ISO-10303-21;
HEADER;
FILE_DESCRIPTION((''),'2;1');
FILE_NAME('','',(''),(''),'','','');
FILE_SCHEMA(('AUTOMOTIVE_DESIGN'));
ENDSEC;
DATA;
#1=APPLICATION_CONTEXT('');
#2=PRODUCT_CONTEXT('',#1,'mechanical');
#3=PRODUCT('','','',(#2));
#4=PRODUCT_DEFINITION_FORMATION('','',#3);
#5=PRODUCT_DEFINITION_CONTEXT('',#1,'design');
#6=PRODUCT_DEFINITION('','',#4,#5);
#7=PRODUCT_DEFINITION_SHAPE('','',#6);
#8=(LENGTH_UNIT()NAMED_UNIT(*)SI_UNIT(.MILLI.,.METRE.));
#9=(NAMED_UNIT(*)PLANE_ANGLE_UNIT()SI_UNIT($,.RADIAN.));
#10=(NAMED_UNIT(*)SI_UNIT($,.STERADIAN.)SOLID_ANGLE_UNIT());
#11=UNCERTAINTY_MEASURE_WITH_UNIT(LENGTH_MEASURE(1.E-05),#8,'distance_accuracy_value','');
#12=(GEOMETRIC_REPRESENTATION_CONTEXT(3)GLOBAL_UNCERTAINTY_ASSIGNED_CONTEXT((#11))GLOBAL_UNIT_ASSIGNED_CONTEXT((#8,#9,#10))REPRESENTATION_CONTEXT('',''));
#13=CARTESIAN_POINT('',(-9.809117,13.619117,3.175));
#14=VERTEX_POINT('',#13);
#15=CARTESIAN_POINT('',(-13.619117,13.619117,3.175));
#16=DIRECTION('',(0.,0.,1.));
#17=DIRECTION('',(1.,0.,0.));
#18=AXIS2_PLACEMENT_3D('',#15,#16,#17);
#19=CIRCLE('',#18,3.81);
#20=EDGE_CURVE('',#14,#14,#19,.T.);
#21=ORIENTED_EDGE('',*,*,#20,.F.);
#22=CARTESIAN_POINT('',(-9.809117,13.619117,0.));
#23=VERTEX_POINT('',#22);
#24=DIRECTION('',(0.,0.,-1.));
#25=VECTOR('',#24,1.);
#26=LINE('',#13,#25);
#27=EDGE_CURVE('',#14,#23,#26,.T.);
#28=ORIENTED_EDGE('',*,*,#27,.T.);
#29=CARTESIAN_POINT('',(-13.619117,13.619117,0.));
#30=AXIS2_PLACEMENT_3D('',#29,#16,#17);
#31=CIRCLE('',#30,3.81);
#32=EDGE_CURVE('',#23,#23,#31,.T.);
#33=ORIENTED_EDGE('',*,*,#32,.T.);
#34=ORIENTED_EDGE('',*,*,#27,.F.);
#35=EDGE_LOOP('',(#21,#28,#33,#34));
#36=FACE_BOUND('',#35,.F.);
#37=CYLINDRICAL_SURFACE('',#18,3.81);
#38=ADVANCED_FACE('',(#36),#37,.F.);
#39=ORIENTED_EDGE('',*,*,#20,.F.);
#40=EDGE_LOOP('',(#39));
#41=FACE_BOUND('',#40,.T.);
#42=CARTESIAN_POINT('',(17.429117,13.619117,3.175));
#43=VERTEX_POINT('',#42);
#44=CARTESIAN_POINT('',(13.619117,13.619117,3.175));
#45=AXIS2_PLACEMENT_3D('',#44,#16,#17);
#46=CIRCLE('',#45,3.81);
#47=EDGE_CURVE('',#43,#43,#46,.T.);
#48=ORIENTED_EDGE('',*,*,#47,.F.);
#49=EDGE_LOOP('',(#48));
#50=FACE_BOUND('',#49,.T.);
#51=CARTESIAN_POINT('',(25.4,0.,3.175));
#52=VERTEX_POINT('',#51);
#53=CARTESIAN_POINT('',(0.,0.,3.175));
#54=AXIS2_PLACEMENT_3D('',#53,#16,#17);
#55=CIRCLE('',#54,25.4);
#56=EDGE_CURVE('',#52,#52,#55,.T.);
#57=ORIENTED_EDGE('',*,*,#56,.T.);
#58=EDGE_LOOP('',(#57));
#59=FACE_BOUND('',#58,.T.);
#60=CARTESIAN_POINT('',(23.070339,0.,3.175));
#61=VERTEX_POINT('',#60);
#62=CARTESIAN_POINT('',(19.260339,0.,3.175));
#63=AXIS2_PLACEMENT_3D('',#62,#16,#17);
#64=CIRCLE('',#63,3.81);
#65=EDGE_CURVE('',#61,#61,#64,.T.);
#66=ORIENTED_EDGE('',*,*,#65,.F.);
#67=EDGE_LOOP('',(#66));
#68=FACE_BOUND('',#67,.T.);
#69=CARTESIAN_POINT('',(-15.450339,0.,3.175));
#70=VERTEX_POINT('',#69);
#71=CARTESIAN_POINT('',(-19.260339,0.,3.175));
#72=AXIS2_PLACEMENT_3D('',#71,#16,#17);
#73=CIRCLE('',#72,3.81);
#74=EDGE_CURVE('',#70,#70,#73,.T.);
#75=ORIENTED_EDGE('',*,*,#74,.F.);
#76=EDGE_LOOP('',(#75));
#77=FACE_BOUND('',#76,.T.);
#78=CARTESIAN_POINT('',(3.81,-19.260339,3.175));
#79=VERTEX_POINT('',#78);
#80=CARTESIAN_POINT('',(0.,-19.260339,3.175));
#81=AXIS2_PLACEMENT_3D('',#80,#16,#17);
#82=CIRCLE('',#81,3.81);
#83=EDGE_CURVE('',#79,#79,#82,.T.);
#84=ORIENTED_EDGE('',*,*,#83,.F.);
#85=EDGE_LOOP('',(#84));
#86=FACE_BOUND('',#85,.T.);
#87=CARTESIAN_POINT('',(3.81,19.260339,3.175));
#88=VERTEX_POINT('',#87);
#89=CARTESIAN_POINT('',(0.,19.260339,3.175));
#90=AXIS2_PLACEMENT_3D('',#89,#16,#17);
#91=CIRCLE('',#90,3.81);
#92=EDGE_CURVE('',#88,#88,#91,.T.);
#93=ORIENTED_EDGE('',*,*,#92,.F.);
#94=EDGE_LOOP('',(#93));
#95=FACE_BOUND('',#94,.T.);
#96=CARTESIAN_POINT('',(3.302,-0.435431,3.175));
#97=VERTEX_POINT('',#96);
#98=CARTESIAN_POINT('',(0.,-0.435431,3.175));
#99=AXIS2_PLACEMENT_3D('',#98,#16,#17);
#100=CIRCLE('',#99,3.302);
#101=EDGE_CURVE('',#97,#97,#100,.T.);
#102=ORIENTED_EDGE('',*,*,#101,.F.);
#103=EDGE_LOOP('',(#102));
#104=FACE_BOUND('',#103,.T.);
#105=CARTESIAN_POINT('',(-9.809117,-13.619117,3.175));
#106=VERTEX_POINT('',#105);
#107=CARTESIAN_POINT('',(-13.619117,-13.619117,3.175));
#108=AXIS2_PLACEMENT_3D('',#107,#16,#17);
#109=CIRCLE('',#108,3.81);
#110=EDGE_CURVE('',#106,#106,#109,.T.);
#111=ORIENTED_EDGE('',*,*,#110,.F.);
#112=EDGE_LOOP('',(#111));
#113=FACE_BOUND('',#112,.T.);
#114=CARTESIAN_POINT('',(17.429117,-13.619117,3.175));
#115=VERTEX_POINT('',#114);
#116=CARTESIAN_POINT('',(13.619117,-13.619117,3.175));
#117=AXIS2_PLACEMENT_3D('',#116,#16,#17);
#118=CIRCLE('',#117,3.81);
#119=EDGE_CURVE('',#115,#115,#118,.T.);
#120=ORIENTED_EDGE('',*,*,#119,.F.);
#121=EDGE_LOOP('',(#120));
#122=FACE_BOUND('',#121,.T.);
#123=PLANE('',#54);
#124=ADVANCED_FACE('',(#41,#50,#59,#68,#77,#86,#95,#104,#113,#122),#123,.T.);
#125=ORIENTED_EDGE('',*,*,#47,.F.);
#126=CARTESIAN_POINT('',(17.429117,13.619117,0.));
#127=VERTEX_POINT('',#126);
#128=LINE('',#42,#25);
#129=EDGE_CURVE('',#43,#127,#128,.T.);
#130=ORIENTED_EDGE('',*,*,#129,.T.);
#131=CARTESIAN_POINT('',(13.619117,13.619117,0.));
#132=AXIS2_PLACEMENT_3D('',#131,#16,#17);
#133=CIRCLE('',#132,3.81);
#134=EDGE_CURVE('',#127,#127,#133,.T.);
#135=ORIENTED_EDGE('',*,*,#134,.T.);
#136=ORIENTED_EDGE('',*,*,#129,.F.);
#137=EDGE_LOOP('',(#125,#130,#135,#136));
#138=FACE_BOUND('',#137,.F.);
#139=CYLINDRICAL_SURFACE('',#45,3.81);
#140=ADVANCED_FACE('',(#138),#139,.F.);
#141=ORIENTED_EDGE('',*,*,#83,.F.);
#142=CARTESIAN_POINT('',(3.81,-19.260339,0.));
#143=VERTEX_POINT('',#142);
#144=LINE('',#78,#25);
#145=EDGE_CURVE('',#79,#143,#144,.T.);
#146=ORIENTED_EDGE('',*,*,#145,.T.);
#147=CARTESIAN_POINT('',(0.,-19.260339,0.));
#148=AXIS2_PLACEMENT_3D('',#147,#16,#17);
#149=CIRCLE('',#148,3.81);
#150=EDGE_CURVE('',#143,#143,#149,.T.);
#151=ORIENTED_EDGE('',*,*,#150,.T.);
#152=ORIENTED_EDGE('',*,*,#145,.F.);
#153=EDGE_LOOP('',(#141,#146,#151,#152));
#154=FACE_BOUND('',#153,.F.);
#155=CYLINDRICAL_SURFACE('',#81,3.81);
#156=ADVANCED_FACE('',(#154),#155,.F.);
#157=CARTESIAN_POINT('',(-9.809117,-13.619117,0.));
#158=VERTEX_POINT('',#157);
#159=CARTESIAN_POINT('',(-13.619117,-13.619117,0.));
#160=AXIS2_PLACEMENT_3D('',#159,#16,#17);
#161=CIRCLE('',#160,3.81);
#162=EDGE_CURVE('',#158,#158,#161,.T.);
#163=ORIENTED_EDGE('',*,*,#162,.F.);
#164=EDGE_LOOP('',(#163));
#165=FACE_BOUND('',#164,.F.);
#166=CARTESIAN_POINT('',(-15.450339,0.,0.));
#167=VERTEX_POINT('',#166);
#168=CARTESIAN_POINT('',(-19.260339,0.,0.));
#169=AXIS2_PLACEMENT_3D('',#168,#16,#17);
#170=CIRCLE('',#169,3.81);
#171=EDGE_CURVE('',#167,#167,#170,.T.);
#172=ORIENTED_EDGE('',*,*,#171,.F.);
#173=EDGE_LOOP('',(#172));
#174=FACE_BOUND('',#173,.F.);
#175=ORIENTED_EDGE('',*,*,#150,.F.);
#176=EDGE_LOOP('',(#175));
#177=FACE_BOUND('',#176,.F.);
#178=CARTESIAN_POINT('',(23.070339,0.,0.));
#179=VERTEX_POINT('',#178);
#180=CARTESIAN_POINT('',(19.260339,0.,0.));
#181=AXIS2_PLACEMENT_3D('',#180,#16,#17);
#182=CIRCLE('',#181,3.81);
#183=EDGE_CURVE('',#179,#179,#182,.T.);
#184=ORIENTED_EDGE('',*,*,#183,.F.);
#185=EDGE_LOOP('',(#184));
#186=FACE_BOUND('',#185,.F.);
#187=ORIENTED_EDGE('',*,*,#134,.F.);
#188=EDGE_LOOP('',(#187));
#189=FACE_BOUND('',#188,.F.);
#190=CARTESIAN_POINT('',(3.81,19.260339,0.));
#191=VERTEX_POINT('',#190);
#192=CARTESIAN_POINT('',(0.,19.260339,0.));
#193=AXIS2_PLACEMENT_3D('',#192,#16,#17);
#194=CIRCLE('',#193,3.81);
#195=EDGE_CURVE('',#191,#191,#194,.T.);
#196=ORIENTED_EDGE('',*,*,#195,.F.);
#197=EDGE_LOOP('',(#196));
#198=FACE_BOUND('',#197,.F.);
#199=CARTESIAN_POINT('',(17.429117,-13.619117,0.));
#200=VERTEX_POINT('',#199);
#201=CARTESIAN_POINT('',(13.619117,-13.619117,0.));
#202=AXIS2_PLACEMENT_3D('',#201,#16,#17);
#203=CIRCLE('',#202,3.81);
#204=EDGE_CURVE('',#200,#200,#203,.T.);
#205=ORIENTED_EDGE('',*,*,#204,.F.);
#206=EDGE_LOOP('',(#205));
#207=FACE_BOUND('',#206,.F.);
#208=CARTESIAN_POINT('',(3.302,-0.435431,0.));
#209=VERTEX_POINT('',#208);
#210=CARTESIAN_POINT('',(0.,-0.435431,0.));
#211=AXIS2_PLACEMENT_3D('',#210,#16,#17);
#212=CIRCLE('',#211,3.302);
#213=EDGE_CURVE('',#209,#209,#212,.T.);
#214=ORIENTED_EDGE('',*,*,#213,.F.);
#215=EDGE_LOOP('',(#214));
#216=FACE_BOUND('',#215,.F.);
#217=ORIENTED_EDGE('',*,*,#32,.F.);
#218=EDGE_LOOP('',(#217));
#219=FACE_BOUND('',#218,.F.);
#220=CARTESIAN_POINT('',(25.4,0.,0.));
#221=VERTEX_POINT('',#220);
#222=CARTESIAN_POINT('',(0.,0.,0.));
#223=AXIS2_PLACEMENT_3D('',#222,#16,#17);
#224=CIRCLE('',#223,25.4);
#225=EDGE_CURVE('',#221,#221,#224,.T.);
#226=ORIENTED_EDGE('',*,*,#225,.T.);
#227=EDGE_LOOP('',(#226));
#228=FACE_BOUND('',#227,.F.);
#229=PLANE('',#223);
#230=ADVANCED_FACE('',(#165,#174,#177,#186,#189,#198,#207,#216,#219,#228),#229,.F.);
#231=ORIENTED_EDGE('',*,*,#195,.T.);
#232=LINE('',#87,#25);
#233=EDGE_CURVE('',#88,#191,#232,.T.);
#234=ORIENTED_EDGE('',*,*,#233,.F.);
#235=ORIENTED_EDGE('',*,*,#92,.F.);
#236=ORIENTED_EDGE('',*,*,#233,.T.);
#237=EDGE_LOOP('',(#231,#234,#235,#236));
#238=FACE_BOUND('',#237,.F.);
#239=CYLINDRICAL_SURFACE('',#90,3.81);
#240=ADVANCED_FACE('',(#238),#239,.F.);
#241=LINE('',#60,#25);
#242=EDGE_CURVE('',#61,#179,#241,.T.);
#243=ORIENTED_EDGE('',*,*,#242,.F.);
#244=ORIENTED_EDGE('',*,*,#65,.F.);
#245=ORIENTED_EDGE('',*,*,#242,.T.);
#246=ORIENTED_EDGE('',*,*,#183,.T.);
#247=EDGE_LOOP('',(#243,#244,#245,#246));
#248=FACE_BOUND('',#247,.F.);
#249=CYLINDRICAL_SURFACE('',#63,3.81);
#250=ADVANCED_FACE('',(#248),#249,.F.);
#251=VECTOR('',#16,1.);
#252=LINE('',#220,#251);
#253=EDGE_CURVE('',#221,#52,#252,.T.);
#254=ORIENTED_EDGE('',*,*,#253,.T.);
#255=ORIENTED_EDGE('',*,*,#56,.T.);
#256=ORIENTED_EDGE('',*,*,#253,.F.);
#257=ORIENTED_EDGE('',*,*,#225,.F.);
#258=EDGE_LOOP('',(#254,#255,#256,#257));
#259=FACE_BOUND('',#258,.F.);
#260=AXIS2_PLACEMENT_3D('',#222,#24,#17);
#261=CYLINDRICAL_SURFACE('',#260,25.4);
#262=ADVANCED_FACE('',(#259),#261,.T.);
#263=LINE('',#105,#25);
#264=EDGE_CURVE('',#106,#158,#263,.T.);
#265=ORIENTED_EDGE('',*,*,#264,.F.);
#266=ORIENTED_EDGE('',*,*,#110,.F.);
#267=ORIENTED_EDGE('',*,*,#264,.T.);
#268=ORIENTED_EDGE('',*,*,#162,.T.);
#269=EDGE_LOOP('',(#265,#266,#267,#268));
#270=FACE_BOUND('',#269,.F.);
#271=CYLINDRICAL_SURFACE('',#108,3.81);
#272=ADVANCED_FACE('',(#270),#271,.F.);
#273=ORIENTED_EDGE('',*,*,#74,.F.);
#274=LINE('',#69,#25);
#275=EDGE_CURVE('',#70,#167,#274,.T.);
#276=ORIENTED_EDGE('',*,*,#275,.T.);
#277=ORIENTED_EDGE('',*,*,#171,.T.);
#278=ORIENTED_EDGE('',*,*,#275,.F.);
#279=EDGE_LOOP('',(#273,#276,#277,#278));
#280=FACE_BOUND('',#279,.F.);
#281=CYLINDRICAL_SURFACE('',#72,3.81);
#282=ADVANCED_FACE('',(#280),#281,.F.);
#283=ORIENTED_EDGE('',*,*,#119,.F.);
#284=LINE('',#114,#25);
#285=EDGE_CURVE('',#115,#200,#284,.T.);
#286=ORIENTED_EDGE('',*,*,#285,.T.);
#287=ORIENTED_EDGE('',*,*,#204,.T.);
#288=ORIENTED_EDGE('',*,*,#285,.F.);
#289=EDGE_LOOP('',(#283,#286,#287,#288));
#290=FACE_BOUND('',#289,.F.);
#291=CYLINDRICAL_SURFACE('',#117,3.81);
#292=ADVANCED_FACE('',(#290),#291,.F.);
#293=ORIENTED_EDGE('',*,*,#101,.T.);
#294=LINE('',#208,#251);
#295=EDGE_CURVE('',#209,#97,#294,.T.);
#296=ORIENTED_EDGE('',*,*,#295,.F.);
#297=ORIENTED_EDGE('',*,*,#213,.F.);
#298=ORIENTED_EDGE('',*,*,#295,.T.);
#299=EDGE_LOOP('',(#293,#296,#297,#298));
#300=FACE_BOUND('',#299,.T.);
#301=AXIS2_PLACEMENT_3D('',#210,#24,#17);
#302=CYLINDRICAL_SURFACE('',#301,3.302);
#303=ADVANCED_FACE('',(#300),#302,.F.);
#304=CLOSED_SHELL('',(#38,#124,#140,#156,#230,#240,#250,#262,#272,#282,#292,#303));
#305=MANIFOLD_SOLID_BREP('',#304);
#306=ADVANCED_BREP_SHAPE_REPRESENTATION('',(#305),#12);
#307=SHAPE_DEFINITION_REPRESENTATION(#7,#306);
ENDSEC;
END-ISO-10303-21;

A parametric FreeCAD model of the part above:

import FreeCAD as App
import Part
import Sketcher
Q = App.Units.Quantity

doc = App.newDocument("Part")
body = doc.addObject("PartDesign::Body", "Body")

sketch1 = doc.addObject("Sketcher::SketchObject", "Sketch")
body.addObject(sketch1)
sketch1.AttachmentSupport = (doc.XY_Plane, [""])
sketch1.MapMode = "FlatFace"
sketch1.addGeometry(Part.Circle(App.Vector(0, 0, 0), App.Vector(0, 0, 1), 25.4), False)
sketch1.addGeometry(Part.Circle(App.Vector(0, -0.4, 0), App.Vector(0, 0, 1), 3.3), False)
sketch1.addConstraint(Sketcher.Constraint("Coincident", 0, 3, -1, 1))
sketch1.addConstraint(Sketcher.Constraint("PointOnObject", 1, 3, -2))
sketch1.addConstraint(Sketcher.Constraint("Diameter", 0, Q("2 in")))
sketch1.addConstraint(Sketcher.Constraint("Diameter", 1, Q("0.26 in")))
sketch1.addConstraint(Sketcher.Constraint("DistanceY", 1, 3, -1, 1, 0.435431))
pad1 = doc.addObject("PartDesign::Pad", "Pad")
body.addObject(pad1)
pad1.Profile = sketch1
pad1.Length = Q("0.125 in")

sketch2 = doc.addObject("Sketcher::SketchObject", "Sketch001")
body.addObject(sketch2)
sketch2.AttachmentSupport = (doc.XY_Plane, [""])
sketch2.MapMode = "FlatFace"
sketch2.AttachmentOffset = App.Placement(App.Vector(0, 0, 0.125 * 25.4), App.Rotation())
sketch2.addGeometry(Part.Circle(App.Vector(0, 19.3, 0), App.Vector(0, 0, 1), 3.8), False)
sketch2.addGeometry(Part.Circle(App.Vector(-13.6, 13.6, 0), App.Vector(0, 0, 1), 3.8), False)
sketch2.addGeometry(Part.Circle(App.Vector(-19.3, 0, 0), App.Vector(0, 0, 1), 3.8), False)
sketch2.addGeometry(Part.Circle(App.Vector(-13.6, -13.6, 0), App.Vector(0, 0, 1), 3.8), False)
sketch2.addGeometry(Part.Circle(App.Vector(0, -19.3, 0), App.Vector(0, 0, 1), 3.8), False)
sketch2.addGeometry(Part.Circle(App.Vector(13.6, -13.6, 0), App.Vector(0, 0, 1), 3.8), False)
sketch2.addGeometry(Part.Circle(App.Vector(19.3, 0, 0), App.Vector(0, 0, 1), 3.8), False)
sketch2.addGeometry(Part.Circle(App.Vector(13.6, 13.6, 0), App.Vector(0, 0, 1), 3.8), False)
sketch2.addConstraint(Sketcher.Constraint("Equal", 0, 1))
sketch2.addConstraint(Sketcher.Constraint("Equal", 1, 2))
sketch2.addConstraint(Sketcher.Constraint("Equal", 2, 3))
sketch2.addConstraint(Sketcher.Constraint("Equal", 3, 4))
sketch2.addConstraint(Sketcher.Constraint("Equal", 4, 5))
sketch2.addConstraint(Sketcher.Constraint("Equal", 5, 6))
sketch2.addConstraint(Sketcher.Constraint("Equal", 6, 7))
sketch2.addConstraint(Sketcher.Constraint("Symmetric", 0, 3, 4, 3, -1, 1))
sketch2.addConstraint(Sketcher.Constraint("Symmetric", 1, 3, 5, 3, -1, 1))
sketch2.addConstraint(Sketcher.Constraint("Symmetric", 2, 3, 6, 3, -1, 1))
sketch2.addConstraint(Sketcher.Constraint("Symmetric", 3, 3, 7, 3, -1, 1))
sketch2.addConstraint(Sketcher.Constraint("Symmetric", 3, 3, 5, 3, -2))
sketch2.addConstraint(Sketcher.Constraint("PointOnObject", 0, 3, -2))
sketch2.addConstraint(Sketcher.Constraint("PointOnObject", 2, 3, -1))
sketch2.addConstraint(Sketcher.Constraint("Diameter", 0, Q("0.3 in")))
sketch2.addConstraint(Sketcher.Constraint("DistanceY", -1, 1, 0, 3, 19.260339))
sketch2.addConstraint(Sketcher.Constraint("DistanceX", 2, 3, -1, 1, 19.260339))
sketch2.addConstraint(Sketcher.Constraint("DistanceY", 1, 3, 0, 3, 5.641222))
sketch2.addConstraint(Sketcher.Constraint("DistanceX", 2, 3, 1, 3, 5.641222))
pocket1 = doc.addObject("PartDesign::Pocket", "Pocket")
body.addObject(pocket1)
pocket1.Profile = sketch2
pocket1.Length = Q("1 in")

doc.recompute()
